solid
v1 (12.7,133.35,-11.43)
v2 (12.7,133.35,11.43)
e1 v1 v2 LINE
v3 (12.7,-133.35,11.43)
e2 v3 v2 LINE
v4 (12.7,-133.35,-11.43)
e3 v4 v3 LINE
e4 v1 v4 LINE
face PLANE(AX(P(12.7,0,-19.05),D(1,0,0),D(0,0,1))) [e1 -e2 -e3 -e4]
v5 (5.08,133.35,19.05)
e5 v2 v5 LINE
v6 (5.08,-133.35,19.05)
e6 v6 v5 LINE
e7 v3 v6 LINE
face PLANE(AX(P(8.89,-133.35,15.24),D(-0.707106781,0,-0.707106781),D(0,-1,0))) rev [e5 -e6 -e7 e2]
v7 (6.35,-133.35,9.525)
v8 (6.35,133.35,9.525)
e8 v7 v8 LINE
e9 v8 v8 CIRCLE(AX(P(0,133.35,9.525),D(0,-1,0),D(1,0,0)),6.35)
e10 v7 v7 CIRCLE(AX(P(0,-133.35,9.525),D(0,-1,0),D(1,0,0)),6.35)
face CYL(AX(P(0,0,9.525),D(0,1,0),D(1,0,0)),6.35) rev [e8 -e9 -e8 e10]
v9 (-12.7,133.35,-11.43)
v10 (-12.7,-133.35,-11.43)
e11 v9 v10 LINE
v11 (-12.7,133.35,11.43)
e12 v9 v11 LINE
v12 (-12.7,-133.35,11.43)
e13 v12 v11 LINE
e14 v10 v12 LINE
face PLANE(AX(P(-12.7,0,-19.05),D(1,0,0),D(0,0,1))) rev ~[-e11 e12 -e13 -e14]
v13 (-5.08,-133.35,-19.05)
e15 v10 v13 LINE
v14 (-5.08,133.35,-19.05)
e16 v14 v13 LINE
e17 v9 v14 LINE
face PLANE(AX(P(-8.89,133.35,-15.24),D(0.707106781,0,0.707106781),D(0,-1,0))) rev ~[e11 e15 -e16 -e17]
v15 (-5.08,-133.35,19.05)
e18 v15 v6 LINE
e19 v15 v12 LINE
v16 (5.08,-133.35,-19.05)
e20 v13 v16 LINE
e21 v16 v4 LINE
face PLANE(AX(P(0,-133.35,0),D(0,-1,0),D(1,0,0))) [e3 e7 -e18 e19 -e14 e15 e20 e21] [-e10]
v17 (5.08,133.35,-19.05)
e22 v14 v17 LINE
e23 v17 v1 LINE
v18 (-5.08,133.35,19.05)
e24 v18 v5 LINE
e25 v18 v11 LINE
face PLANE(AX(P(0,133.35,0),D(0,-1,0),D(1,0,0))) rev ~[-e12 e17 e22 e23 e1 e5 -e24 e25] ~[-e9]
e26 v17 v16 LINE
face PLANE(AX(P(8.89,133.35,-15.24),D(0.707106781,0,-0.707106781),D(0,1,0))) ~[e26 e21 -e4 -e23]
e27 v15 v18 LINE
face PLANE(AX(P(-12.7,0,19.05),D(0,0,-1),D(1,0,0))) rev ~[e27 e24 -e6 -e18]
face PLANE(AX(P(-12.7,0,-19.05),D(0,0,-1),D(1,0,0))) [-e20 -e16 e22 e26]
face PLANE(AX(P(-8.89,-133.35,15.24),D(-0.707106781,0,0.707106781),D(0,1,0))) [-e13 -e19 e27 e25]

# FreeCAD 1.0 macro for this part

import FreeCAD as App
import Part
import Sketcher

V = App.Vector
Q = App.Units.Quantity


def edges_at(feature, points):
    """Names of the edges that pass closest to the given points."""
    edges = feature.Shape.Edges
    near = lambda p: min(range(len(edges)), key=lambda i: edges[i].distToShape(Part.Vertex(*p))[0])
    return sorted({f"Edge{near(p) + 1}" for p in points})

doc = App.newDocument("Part")
params = doc.addObject("Spreadsheet::Sheet", "Params")
for row, (alias, value) in enumerate([
    ("sketch1_diameter", "0.5 in"),
    ("sketch1_width", "1 in"),
    ("sketch1_height", "1.5 in"),
    ("pad1_length", "10.5 in"),
    ("chamfer_size", "0.3 in"),
    ("chamfer2_size", "0.3 in"),
    ("chamfer3_size", "0.3 in"),
    ("chamfer4_size", "0.3 in"),
], start=1):
    params.set(f"A{row}", alias)
    params.set(f"B{row}", "=" + value)
    params.setAlias(f"B{row}", alias)

body = doc.addObject("PartDesign::Body", "Body")

sketch1 = doc.addObject("Sketcher::SketchObject", "Sketch")
body.addObject(sketch1)
sketch1.AttachmentSupport = (doc.XZ_Plane, [""])
sketch1.MapMode = "FlatFace"
sketch1.addGeometry(Part.LineSegment(V(-13, 19, 0), V(-13, -19, 0)), False)
sketch1.addGeometry(Part.LineSegment(V(-13, -19, 0), V(13, -19, 0)), False)
sketch1.addGeometry(Part.LineSegment(V(13, -19, 0), V(13, 19, 0)), False)
sketch1.addGeometry(Part.LineSegment(V(13, 19, 0), V(-13, 19, 0)), False)
sketch1.addGeometry(Part.Circle(V(0, 10, 0), V(0, 0, 1), 6), False)
sketch1.addConstraint(Sketcher.Constraint("Coincident", 0, 2, 1, 1))
sketch1.addConstraint(Sketcher.Constraint("Coincident", 1, 2, 2, 1))
sketch1.addConstraint(Sketcher.Constraint("Coincident", 2, 2, 3, 1))
sketch1.addConstraint(Sketcher.Constraint("Coincident", 3, 2, 0, 1))
sketch1.addConstraint(Sketcher.Constraint("Vertical", 0))
sketch1.addConstraint(Sketcher.Constraint("Horizontal", 1))
sketch1.addConstraint(Sketcher.Constraint("Vertical", 2))
sketch1.addConstraint(Sketcher.Constraint("Horizontal", 3))
sketch1.addConstraint(Sketcher.Constraint("Symmetric", 0, 2, 2, 2, -1, 1))
sketch1.addConstraint(Sketcher.Constraint("PointOnObject", 4, 3, -2))
sketch1.addConstraint(Sketcher.Constraint("Diameter", 4, Q("0.5 in")))
sketch1.addConstraint(Sketcher.Constraint("DistanceX", 1, 1, 1, 2, Q("1 in")))
sketch1.addConstraint(Sketcher.Constraint("DistanceY", 0, 2, 0, 1, Q("1.5 in")))
sketch1.addConstraint(Sketcher.Constraint("DistanceY", -1, 1, 4, 3, Q("0.375 in")))
sketch1.setExpression("Constraints[10]", "Params.sketch1_diameter")
sketch1.setExpression("Constraints[11]", "Params.sketch1_width")
sketch1.setExpression("Constraints[12]", "Params.sketch1_height")
pad1 = doc.addObject("PartDesign::Pad", "Pad")
body.addObject(pad1)
pad1.Profile = sketch1
pad1.setExpression("Length", "Params.pad1_length")
pad1.Midplane = True
doc.recompute()

chamfer = doc.addObject("PartDesign::Chamfer", "Chamfer")
body.addObject(chamfer)
chamfer.Base = (pad1, edges_at(pad1, [(12.7, 0, 19.05)]))
chamfer.setExpression("Size", "Params.chamfer_size")
doc.recompute()

chamfer2 = doc.addObject("PartDesign::Chamfer", "Chamfer001")
body.addObject(chamfer2)
chamfer2.Base = (chamfer, edges_at(chamfer, [(-12.7, 0, 19.05)]))
chamfer2.setExpression("Size", "Params.chamfer2_size")
doc.recompute()

chamfer3 = doc.addObject("PartDesign::Chamfer", "Chamfer002")
body.addObject(chamfer3)
chamfer3.Base = (chamfer2, edges_at(chamfer2, [(-12.7, 0, -19.05)]))
chamfer3.setExpression("Size", "Params.chamfer3_size")
doc.recompute()

chamfer4 = doc.addObject("PartDesign::Chamfer", "Chamfer003")
body.addObject(chamfer4)
chamfer4.Base = (chamfer3, edges_at(chamfer3, [(12.7, 0, -19.05)]))
chamfer4.setExpression("Size", "Params.chamfer4_size")

doc.recompute()
